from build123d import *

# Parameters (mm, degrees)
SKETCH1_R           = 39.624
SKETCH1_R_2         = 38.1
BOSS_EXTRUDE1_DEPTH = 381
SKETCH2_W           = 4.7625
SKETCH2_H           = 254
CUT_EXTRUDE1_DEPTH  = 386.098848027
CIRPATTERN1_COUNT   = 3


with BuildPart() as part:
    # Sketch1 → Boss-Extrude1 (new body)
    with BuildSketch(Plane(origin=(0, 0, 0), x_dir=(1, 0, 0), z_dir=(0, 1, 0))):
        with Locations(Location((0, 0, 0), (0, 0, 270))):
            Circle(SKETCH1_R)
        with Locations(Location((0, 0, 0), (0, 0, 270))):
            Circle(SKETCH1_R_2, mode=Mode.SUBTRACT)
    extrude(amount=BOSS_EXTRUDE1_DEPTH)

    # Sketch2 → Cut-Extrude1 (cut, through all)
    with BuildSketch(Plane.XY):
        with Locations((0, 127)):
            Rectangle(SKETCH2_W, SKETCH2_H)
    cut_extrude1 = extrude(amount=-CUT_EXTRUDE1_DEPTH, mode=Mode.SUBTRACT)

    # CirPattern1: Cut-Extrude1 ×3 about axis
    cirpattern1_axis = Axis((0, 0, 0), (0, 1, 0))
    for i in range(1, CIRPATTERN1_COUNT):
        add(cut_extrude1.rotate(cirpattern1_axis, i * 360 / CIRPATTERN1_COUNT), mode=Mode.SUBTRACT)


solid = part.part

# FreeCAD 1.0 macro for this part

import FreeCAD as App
import Part
import Sketcher

V = App.Vector
Q = App.Units.Quantity

doc = App.newDocument("Part")
params = doc.addObject("Spreadsheet::Sheet", "Params")
for row, (alias, value) in enumerate([
    ("sketch1_diameter", "3 in"),
    ("sketch1_diameter2", "3.12 in"),
    ("pad1_length", "15 in"),
    ("sketch2_height", "10 in"),
    ("sketch2_width", "0.1875 in"),
], start=1):
    params.set(f"A{row}", alias)
    params.set(f"B{row}", "=" + value)
    params.setAlias(f"B{row}", alias)

body = doc.addObject("PartDesign::Body", "Body")

# Sketch on XZ plane
sketch1 = body.newObject("Sketcher::SketchObject", "Sketch")
sketch1.AttachmentSupport = (doc.getObject("XZ_Plane"), [""])
sketch1.MapMode = "FlatFace"
sketch1.addGeometry([
    Part.Circle(V(0, 0, 0), V(0, 0, 1), 40),
    Part.Circle(V(0, 0, 0), V(0, 0, 1), 38),
], False)
sketch1.addConstraint([
    Sketcher.Constraint("Coincident", 0, 3, -1, 1),
    Sketcher.Constraint("Coincident", 1, 3, -1, 1),
    Sketcher.Constraint("Diameter", 1, Q("3 in")),
    Sketcher.Constraint("Diameter", 0, Q("3.12 in")),
])
sketch1.setExpression("Constraints[2]", "Params.sketch1_diameter")
sketch1.setExpression("Constraints[3]", "Params.sketch1_diameter2")
pad1 = body.newObject("PartDesign::Pad", "Pad")
pad1.Profile = sketch1
pad1.setExpression("Length", "Params.pad1_length")
pad1.Reversed = True

# Sketch on XY plane
sketch2 = body.newObject("Sketcher::SketchObject", "Sketch001")
sketch2.AttachmentSupport = (doc.getObject("XY_Plane"), [""])
sketch2.MapMode = "FlatFace"
sketch2.addGeometry([
    Part.LineSegment(V(-2.4, 254, 0), V(-2.4, 0, 0)),
    Part.LineSegment(V(-2.4, 0, 0), V(2.4, 0, 0)),
    Part.LineSegment(V(2.4, 0, 0), V(2.4, 254, 0)),
    Part.LineSegment(V(2.4, 254, 0), V(-2.4, 254, 0)),
], False)
sketch2.addConstraint([
    Sketcher.Constraint("Coincident", 0, 2, 1, 1),
    Sketcher.Constraint("Coincident", 1, 2, 2, 1),
    Sketcher.Constraint("Coincident", 2, 2, 3, 1),
    Sketcher.Constraint("Coincident", 3, 2, 0, 1),
    Sketcher.Constraint("Vertical", 0),
    Sketcher.Constraint("Horizontal", 1),
    Sketcher.Constraint("Vertical", 2),
    Sketcher.Constraint("Horizontal", 3),
    Sketcher.Constraint("Symmetric", 0, 2, 1, 2, -1, 1),
    Sketcher.Constraint("DistanceY", 0, 2, 0, 1, Q("10 in")),
    Sketcher.Constraint("DistanceX", 1, 1, 1, 2, Q("0.1875 in")),
])
sketch2.setExpression("Constraints[9]", "Params.sketch2_height")
sketch2.setExpression("Constraints[10]", "Params.sketch2_width")
pocket1 = body.newObject("PartDesign::Pocket", "Pocket")
pocket1.Profile = sketch2
pocket1.Type = "ThroughAll"
doc.recompute()

polarpattern = body.newObject("PartDesign::PolarPattern", "PolarPattern")
polarpattern.Originals = [pocket1]
polarpattern.Axis = (doc.getObject("Y_Axis"), [""])
polarpattern.Angle = 360
polarpattern.Occurrences = 3
body.Tip = polarpattern

doc.recompute()
